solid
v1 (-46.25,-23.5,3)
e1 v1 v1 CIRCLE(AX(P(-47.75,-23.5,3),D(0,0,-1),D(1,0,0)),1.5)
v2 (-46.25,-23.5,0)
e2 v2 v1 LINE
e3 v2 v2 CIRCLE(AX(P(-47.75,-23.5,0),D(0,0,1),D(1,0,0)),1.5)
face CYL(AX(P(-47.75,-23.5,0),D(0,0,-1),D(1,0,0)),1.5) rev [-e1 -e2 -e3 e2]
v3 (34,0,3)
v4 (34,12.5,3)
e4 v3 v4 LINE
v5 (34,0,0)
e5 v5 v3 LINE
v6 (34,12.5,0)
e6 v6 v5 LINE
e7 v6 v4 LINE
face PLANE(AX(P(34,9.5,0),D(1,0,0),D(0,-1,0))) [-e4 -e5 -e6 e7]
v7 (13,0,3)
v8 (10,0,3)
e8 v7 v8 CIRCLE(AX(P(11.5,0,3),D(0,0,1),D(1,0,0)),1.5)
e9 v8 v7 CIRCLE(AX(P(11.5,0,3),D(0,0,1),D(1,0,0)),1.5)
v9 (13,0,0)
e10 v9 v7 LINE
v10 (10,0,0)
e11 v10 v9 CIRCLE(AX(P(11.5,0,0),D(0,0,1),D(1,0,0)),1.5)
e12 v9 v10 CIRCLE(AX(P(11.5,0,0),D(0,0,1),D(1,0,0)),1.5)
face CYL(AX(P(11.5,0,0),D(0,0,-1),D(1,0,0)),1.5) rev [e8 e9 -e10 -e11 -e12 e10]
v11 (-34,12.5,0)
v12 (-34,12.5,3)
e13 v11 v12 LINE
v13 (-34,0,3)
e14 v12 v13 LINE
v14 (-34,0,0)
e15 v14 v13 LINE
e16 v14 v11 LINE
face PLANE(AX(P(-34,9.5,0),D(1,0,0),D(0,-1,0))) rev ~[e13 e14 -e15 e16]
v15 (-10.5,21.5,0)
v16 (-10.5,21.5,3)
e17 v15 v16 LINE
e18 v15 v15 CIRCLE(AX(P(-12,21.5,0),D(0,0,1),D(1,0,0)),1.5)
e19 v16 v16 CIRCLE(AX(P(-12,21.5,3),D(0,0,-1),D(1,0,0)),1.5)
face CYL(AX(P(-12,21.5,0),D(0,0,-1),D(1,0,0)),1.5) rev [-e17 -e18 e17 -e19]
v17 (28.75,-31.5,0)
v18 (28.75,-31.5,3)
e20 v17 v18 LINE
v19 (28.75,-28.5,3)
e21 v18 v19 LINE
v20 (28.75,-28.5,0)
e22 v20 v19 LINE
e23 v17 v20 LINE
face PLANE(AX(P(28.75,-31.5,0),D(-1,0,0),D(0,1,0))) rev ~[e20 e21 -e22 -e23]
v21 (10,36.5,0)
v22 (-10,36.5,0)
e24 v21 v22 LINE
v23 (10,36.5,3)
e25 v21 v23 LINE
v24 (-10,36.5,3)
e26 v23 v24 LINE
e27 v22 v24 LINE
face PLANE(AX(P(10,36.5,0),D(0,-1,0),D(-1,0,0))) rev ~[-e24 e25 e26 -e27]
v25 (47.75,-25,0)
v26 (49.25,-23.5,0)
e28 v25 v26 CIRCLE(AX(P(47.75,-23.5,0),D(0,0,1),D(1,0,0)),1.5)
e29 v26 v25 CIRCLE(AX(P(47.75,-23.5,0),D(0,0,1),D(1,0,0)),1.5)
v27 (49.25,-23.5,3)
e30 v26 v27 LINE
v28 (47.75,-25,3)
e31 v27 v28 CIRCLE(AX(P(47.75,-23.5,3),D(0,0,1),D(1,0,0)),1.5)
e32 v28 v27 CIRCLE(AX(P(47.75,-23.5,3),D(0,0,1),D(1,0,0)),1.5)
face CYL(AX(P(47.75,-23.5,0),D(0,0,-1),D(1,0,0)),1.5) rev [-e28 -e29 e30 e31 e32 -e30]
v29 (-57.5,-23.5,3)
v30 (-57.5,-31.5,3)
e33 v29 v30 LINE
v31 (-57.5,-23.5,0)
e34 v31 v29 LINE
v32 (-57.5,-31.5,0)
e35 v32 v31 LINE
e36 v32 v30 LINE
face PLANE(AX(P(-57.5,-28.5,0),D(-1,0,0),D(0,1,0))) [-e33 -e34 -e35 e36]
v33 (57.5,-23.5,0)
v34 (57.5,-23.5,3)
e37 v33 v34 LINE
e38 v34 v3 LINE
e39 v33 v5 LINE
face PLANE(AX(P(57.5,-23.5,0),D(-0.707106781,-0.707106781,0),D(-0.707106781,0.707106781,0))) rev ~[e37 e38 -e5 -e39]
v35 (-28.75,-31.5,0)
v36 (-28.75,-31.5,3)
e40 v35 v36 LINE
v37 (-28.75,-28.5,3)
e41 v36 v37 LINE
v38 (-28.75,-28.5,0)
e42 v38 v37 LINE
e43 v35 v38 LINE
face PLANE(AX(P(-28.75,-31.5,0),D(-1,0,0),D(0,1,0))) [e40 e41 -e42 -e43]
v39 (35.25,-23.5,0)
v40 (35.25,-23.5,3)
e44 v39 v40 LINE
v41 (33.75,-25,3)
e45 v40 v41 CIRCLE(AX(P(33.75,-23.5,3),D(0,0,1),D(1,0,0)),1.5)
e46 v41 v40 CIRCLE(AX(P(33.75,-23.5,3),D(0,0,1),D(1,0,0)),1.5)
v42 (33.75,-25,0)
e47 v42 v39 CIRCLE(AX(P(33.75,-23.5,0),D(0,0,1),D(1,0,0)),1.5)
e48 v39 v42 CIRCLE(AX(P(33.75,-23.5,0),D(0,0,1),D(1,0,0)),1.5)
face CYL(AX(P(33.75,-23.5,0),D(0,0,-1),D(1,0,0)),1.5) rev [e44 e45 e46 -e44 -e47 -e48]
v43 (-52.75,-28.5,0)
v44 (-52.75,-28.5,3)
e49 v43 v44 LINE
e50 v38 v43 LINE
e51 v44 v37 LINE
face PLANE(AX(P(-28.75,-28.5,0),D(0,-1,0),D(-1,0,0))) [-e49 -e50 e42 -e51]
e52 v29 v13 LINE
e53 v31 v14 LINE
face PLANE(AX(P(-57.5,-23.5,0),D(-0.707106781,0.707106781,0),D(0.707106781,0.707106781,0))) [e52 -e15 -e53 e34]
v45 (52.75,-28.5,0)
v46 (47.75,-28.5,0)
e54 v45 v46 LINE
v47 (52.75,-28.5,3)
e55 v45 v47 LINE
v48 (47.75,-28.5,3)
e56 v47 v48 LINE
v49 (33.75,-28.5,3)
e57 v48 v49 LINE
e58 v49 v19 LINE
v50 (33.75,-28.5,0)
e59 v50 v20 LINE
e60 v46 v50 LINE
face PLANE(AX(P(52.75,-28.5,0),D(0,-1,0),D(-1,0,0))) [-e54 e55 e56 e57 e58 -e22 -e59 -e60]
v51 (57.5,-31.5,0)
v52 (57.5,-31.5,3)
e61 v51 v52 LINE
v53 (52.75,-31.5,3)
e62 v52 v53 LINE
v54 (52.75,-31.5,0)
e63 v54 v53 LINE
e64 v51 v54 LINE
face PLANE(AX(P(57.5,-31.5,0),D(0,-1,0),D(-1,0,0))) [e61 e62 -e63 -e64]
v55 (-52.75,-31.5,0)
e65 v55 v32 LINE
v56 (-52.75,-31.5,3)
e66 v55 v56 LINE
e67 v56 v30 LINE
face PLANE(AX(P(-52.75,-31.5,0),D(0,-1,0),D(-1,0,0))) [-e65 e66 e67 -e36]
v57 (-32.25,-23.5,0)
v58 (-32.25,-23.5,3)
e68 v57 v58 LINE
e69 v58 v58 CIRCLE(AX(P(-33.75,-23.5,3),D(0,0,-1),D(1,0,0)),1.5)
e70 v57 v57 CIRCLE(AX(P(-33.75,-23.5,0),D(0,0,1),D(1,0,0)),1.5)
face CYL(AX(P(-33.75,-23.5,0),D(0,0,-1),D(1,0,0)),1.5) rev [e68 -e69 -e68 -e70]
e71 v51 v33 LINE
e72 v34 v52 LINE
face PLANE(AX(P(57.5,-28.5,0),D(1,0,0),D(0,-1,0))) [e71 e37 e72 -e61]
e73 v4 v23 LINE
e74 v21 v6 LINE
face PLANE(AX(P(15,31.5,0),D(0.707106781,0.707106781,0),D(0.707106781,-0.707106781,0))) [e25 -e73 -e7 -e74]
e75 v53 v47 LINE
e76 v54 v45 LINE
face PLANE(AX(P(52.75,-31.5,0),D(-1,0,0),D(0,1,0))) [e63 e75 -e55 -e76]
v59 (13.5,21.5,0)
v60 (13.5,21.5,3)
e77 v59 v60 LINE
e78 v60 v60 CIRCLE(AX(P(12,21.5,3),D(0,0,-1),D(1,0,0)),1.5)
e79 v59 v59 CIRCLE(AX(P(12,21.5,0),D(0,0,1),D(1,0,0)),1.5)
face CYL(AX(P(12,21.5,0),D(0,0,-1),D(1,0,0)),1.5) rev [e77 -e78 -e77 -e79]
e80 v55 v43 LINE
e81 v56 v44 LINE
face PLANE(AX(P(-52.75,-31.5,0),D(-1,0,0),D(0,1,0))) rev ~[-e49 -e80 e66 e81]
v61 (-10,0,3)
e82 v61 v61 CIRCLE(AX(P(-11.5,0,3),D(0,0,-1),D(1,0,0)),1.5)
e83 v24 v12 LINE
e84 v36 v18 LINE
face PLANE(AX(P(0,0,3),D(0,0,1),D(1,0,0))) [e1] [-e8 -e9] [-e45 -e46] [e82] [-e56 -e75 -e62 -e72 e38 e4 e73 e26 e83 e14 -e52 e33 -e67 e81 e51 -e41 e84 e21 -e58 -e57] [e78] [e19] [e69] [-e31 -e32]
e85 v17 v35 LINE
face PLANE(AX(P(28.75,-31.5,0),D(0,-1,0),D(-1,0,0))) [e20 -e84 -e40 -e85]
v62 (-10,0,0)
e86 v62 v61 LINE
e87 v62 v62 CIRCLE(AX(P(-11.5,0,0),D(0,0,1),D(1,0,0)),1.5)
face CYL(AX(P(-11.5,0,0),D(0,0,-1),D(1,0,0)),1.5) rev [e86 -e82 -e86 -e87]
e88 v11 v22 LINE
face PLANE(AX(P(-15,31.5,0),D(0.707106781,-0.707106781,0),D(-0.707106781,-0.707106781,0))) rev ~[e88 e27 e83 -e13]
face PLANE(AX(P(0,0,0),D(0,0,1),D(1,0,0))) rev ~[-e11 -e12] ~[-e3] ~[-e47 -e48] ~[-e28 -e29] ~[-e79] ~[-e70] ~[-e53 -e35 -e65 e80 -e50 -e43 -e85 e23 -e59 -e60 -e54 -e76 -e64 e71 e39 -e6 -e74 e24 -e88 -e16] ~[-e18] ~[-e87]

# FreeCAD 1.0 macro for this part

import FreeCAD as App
import Part
import Sketcher
Q = App.Units.Quantity

doc = App.newDocument("Part")
body = doc.addObject("PartDesign::Body", "Body")

# Sketch on XY plane
sketch1 = body.newObject("Sketcher::SketchObject", "Sketch")
sketch1.AttachmentSupport = (doc.getObject("XY_Plane"), [""])
sketch1.MapMode = "FlatFace"
sketch1.addGeometry([
    Part.LineSegment(App.Vector(52.8, -31.5, 0), App.Vector(57.5, -31.5, 0)),  # 0
    Part.LineSegment(App.Vector(57.5, -31.5, 0), App.Vector(57.5, -23.5, 0)),  # 1
    Part.LineSegment(App.Vector(57.5, -23.5, 0), App.Vector(34, 0, 0)),  # 2
    Part.LineSegment(App.Vector(34, 0, 0), App.Vector(34, 12.5, 0)),  # 3
    Part.LineSegment(App.Vector(34, 12.5, 0), App.Vector(10, 36.5, 0)),  # 4
    Part.LineSegment(App.Vector(10, 36.5, 0), App.Vector(-10, 36.5, 0)),  # 5
    Part.LineSegment(App.Vector(-10, 36.5, 0), App.Vector(-34, 12.5, 0)),  # 6
    Part.LineSegment(App.Vector(-34, 12.5, 0), App.Vector(-34, 0, 0)),  # 7
    Part.LineSegment(App.Vector(-34, 0, 0), App.Vector(-57.5, -23.5, 0)),  # 8
    Part.LineSegment(App.Vector(-57.5, -23.5, 0), App.Vector(-57.5, -31.5, 0)),  # 9
    Part.LineSegment(App.Vector(-57.5, -31.5, 0), App.Vector(-52.8, -31.5, 0)),  # 10
    Part.LineSegment(App.Vector(-52.8, -31.5, 0), App.Vector(-52.8, -28.5, 0)),  # 11
    Part.LineSegment(App.Vector(-52.8, -28.5, 0), App.Vector(-28.8, -28.5, 0)),  # 12
    Part.LineSegment(App.Vector(-28.8, -28.5, 0), App.Vector(-28.8, -31.5, 0)),  # 13
    Part.LineSegment(App.Vector(-28.8, -31.5, 0), App.Vector(28.8, -31.5, 0)),  # 14
    Part.LineSegment(App.Vector(28.8, -31.5, 0), App.Vector(28.8, -28.5, 0)),  # 15
    Part.LineSegment(App.Vector(28.8, -28.5, 0), App.Vector(33.8, -28.5, 0)),  # 16
    Part.LineSegment(App.Vector(33.8, -28.5, 0), App.Vector(47.8, -28.5, 0)),  # 17
    Part.LineSegment(App.Vector(47.8, -28.5, 0), App.Vector(52.8, -28.5, 0)),  # 18
    Part.LineSegment(App.Vector(52.8, -28.5, 0), App.Vector(52.8, -31.5, 0)),  # 19
    Part.Circle(App.Vector(12, 21.5, 0), App.Vector(0, 0, 1), 1.5),  # 20
    Part.Circle(App.Vector(33.8, -23.5, 0), App.Vector(0, 0, 1), 1.5),  # 21
    Part.Circle(App.Vector(47.8, -23.5, 0), App.Vector(0, 0, 1), 1.5),  # 22
    Part.Circle(App.Vector(11.5, 0, 0), App.Vector(0, 0, 1), 1.5),  # 23
    Part.Circle(App.Vector(-33.8, -23.5, 0), App.Vector(0, 0, 1), 1.5),  # 24
    Part.Circle(App.Vector(-11.5, 0, 0), App.Vector(0, 0, 1), 1.5),  # 25
    Part.Circle(App.Vector(-12, 21.5, 0), App.Vector(0, 0, 1), 1.5),  # 26
    Part.Circle(App.Vector(-47.8, -23.5, 0), App.Vector(0, 0, 1), 1.5),  # 27
], False)
sketch1.addConstraint([
    Sketcher.Constraint("Coincident", 0, 2, 1, 1),
    Sketcher.Constraint("Coincident", 1, 2, 2, 1),
    Sketcher.Constraint("Coincident", 2, 2, 3, 1),
    Sketcher.Constraint("Coincident", 3, 2, 4, 1),
    Sketcher.Constraint("Coincident", 4, 2, 5, 1),
    Sketcher.Constraint("Coincident", 5, 2, 6, 1),
    Sketcher.Constraint("Coincident", 6, 2, 7, 1),
    Sketcher.Constraint("Coincident", 7, 2, 8, 1),
    Sketcher.Constraint("Coincident", 8, 2, 9, 1),
    Sketcher.Constraint("Coincident", 9, 2, 10, 1),
    Sketcher.Constraint("Coincident", 10, 2, 11, 1),
    Sketcher.Constraint("Coincident", 11, 2, 12, 1),
    Sketcher.Constraint("Coincident", 12, 2, 13, 1),
    Sketcher.Constraint("Coincident", 13, 2, 14, 1),
    Sketcher.Constraint("Coincident", 14, 2, 15, 1),
    Sketcher.Constraint("Coincident", 15, 2, 16, 1),
    Sketcher.Constraint("Coincident", 16, 2, 17, 1),
    Sketcher.Constraint("Coincident", 17, 2, 18, 1),
    Sketcher.Constraint("Coincident", 18, 2, 19, 1),
    Sketcher.Constraint("Coincident", 19, 2, 0, 1),
    Sketcher.Constraint("Horizontal", 0),
    Sketcher.Constraint("Vertical", 1),
    Sketcher.Constraint("Vertical", 3),
    Sketcher.Constraint("Horizontal", 5),
    Sketcher.Constraint("Vertical", 7),
    Sketcher.Constraint("Vertical", 9),
    Sketcher.Constraint("Horizontal", 10),
    Sketcher.Constraint("Vertical", 11),
    Sketcher.Constraint("Horizontal", 12),
    Sketcher.Constraint("Vertical", 13),
    Sketcher.Constraint("Horizontal", 14),
    Sketcher.Constraint("Vertical", 15),
    Sketcher.Constraint("Horizontal", 16),
    Sketcher.Constraint("Horizontal", 17),
    Sketcher.Constraint("Horizontal", 18),
    Sketcher.Constraint("Vertical", 19),
    Sketcher.Constraint("Equal", 20, 21),
    Sketcher.Constraint("Equal", 21, 22),
    Sketcher.Constraint("Equal", 22, 23),
    Sketcher.Constraint("Equal", 23, 24),
    Sketcher.Constraint("Equal", 24, 25),
    Sketcher.Constraint("Equal", 25, 26),
    Sketcher.Constraint("Equal", 26, 27),
    Sketcher.Constraint("Symmetric", 23, 3, 25, 3, -1, 1),
    Sketcher.Constraint("Symmetric", 2, 2, 7, 2, -1, 1),
    Sketcher.Constraint("Symmetric", 21, 3, 24, 3, -2),
    Sketcher.Constraint("Symmetric", 20, 3, 26, 3, -2),
    Sketcher.Constraint("Symmetric", 22, 3, 27, 3, -2),
    Sketcher.Constraint("Symmetric", 1, 2, 8, 2, -2),
    Sketcher.Constraint("Symmetric", 12, 2, 15, 2, -2),
    Sketcher.Constraint("Symmetric", 10, 2, 19, 2, -2),
    Sketcher.Constraint("PointOnObject", 23, 3, -1),
    Sketcher.Constraint("PointOnObject", 2, 2, -1),
    Sketcher.Constraint("Parallel", 2, 4),
    Sketcher.Constraint("Perpendicular", 4, 6),
    Sketcher.Constraint("Parallel", 6, 8),
    Sketcher.Constraint("Horizontal", 21, 3, 22, 3),
    Sketcher.Constraint("Horizontal", 27, 3, 1, 2),
    Sketcher.Constraint("Horizontal", 3, 2, 6, 2),
    Sketcher.Constraint("Horizontal", 10, 2, 13, 2),
    Sketcher.Constraint("Vertical", 21, 3, 16, 2),
    Sketcher.Constraint("Vertical", 22, 3, 17, 2),
    Sketcher.Constraint("Equal", 16, 18),
    Sketcher.Constraint("Diameter", 20, Q("3 mm")),
    Sketcher.Constraint("DistanceX", 16, 1, 16, 2, Q("5 mm")),
    Sketcher.Constraint("DistanceX", 17, 1, 17, 2, Q("14 mm")),
    Sketcher.Constraint("DistanceY", 1, 1, 1, 2, Q("8 mm")),
    Sketcher.Constraint("DistanceY", 11, 1, 11, 2, Q("3 mm")),
    Sketcher.Constraint("DistanceX", -1, 1, 20, 3, Q("12 mm")),
    Sketcher.Constraint("DistanceX", -1, 1, 4, 2, Q("10 mm")),
    Sketcher.Constraint("DistanceY", 21, 3, 20, 3, Q("45 mm")),
    Sketcher.Constraint("DistanceX", -1, 1, 23, 3, Q("11.5 mm")),
    Sketcher.Constraint("DistanceX", -1, 1, 21, 3, Q("33.75 mm")),
    Sketcher.Constraint("DistanceY", 3, 1, 3, 2, Q("12.5 mm")),
    Sketcher.Constraint("DistanceX", -1, 1, 2, 2, Q("34 mm")),
    Sketcher.Constraint("DistanceX", 23, 3, 0, 2, Q("46 mm")),
])
pad1 = body.newObject("PartDesign::Pad", "Pad")
pad1.Profile = sketch1
pad1.Length = 3

doc.recompute()
